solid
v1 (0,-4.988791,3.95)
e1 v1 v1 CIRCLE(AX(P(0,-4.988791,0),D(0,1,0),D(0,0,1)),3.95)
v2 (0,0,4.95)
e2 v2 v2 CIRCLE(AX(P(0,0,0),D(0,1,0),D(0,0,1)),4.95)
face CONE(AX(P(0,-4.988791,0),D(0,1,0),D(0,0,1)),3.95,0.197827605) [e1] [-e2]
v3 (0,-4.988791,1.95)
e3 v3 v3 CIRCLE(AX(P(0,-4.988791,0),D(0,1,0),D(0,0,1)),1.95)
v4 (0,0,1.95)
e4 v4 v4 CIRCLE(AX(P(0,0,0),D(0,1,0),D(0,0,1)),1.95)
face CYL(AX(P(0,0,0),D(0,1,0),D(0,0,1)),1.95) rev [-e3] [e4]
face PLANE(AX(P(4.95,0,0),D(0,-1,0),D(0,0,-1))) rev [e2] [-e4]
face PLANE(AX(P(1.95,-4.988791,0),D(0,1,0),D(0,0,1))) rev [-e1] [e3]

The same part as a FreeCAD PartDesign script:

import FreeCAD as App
import Part
import Sketcher

doc = App.newDocument("Part")
body = doc.addObject("PartDesign::Body", "Body")

# Sketch on XY plane
sketch1 = body.newObject("Sketcher::SketchObject", "Sketch")
sketch1.AttachmentSupport = (doc.getObject("XY_Plane"), [""])
sketch1.MapMode = "FlatFace"
sketch1.addGeometry([
    Part.LineSegment(App.Vector(1.95, 0, 0), App.Vector(1.95, -4.988791, 0)),
    Part.LineSegment(App.Vector(1.95, -4.988791, 0), App.Vector(3.95, -4.988791, 0)),
    Part.LineSegment(App.Vector(3.95, -4.988791, 0), App.Vector(4.95, 0, 0)),
    Part.LineSegment(App.Vector(4.95, 0, 0), App.Vector(1.95, 0, 0)),
], False)
sketch1.addConstraint([
    Sketcher.Constraint("Coincident", 0, 2, 1, 1),
    Sketcher.Constraint("Coincident", 1, 2, 2, 1),
    Sketcher.Constraint("Coincident", 2, 2, 3, 1),
    Sketcher.Constraint("Coincident", 3, 2, 0, 1),
    Sketcher.Constraint("Vertical", 0),
    Sketcher.Constraint("Horizontal", 1),
    Sketcher.Constraint("Horizontal", 3),
    Sketcher.Constraint("PointOnObject", 2, 2, -1),
    Sketcher.Constraint("DistanceX", 1, 1, 1, 2, 2.0),
    Sketcher.Constraint("DistanceX", 3, 2, 3, 1, 3.0),
    Sketcher.Constraint("DistanceX", -1, 1, 0, 2, 1.95),
    Sketcher.Constraint("DistanceY", 0, 2, 0, 1, 4.988791),
])
revolution = body.newObject("PartDesign::Revolution", "Revolution")
revolution.Profile = sketch1
revolution.ReferenceAxis = (sketch1, ["V_Axis"])
revolution.Angle = 360

doc.recompute()
